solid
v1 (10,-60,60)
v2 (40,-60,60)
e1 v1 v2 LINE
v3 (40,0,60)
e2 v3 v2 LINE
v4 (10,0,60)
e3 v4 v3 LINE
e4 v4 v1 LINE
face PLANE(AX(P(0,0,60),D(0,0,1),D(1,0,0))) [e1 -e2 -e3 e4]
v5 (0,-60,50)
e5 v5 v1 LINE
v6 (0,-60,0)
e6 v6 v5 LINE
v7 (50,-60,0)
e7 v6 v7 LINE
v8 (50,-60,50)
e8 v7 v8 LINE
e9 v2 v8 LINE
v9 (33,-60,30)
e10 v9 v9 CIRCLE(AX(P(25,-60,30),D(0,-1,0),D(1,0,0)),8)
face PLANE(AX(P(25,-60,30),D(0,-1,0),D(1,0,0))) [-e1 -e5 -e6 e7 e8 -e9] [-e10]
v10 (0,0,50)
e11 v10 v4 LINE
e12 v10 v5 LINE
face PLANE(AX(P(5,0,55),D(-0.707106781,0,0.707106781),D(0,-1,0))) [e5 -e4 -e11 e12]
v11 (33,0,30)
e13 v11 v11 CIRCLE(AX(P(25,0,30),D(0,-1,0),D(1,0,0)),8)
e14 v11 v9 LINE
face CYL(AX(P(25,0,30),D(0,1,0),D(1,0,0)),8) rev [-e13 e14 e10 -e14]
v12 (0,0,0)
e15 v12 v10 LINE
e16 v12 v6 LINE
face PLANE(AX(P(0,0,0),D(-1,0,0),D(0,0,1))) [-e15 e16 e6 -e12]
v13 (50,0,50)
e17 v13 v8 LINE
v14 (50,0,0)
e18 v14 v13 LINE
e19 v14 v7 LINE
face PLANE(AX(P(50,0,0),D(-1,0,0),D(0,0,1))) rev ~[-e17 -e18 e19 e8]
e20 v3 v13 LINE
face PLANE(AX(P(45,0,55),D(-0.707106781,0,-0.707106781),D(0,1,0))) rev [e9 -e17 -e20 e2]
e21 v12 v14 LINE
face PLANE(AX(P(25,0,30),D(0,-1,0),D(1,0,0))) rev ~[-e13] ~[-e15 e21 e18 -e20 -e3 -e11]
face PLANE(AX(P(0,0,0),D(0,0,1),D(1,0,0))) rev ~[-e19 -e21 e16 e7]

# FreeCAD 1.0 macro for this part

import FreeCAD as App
import Part
import Sketcher


def edges_at(feature, points):
    """Names of the edges that pass closest to the given points."""
    edges = feature.Shape.Edges
    near = lambda p: min(range(len(edges)), key=lambda i: edges[i].distToShape(Part.Vertex(*p))[0])
    return sorted({f"Edge{near(p) + 1}" for p in points})


def add_polygon(sketch, points):
    """Adds a closed chain of lines whose ends are joined by coincident constraints."""
    first, n = sketch.GeometryCount, len(points)
    for a, b in zip(points, points[1:] + points[:1]):
        sketch.addGeometry(Part.LineSegment(App.Vector(*a, 0), App.Vector(*b, 0)), False)
    for i in range(n):
        sketch.addConstraint(Sketcher.Constraint("Coincident", first + i, 2, first + (i + 1) % n, 1))

doc = App.newDocument("Part")
body = doc.addObject("PartDesign::Body", "Body")

# Sketch on XZ plane
sketch1 = doc.addObject("Sketcher::SketchObject", "Sketch")
body.addObject(sketch1)
sketch1.AttachmentSupport = (doc.XZ_Plane, [""])
sketch1.MapMode = "FlatFace"
add_polygon(sketch1, [(0, 60), (0, 0), (50, 0), (50, 60)])  # lines 0-3
sketch1.addGeometry(Part.Circle(App.Vector(25, 30, 0), App.Vector(0, 0, 1), 8), False)  # 4
sketch1.addConstraint([
    Sketcher.Constraint("Vertical", 0),
    Sketcher.Constraint("Horizontal", 1),
    Sketcher.Constraint("Vertical", 2),
    Sketcher.Constraint("Horizontal", 3),
    Sketcher.Constraint("Coincident", 0, 2, -1, 1),
    Sketcher.Constraint("Diameter", 4, 16.0),
    Sketcher.Constraint("DistanceX", 1, 1, 1, 2, 50.0),
    Sketcher.Constraint("DistanceY", 0, 2, 0, 1, 60.0),
    Sketcher.Constraint("DistanceX", -1, 1, 4, 3, 25.0),
    Sketcher.Constraint("DistanceY", -1, 1, 4, 3, 30.0),
])
pad1 = doc.addObject("PartDesign::Pad", "Pad")
body.addObject(pad1)
pad1.Profile = sketch1
pad1.Length = 60
doc.recompute()

chamfer = doc.addObject("PartDesign::Chamfer", "Chamfer")
body.addObject(chamfer)
chamfer.Base = (pad1, edges_at(pad1, [(50, -30, 60), (0, -30, 60)]))
chamfer.Size = 10

doc.recompute()
